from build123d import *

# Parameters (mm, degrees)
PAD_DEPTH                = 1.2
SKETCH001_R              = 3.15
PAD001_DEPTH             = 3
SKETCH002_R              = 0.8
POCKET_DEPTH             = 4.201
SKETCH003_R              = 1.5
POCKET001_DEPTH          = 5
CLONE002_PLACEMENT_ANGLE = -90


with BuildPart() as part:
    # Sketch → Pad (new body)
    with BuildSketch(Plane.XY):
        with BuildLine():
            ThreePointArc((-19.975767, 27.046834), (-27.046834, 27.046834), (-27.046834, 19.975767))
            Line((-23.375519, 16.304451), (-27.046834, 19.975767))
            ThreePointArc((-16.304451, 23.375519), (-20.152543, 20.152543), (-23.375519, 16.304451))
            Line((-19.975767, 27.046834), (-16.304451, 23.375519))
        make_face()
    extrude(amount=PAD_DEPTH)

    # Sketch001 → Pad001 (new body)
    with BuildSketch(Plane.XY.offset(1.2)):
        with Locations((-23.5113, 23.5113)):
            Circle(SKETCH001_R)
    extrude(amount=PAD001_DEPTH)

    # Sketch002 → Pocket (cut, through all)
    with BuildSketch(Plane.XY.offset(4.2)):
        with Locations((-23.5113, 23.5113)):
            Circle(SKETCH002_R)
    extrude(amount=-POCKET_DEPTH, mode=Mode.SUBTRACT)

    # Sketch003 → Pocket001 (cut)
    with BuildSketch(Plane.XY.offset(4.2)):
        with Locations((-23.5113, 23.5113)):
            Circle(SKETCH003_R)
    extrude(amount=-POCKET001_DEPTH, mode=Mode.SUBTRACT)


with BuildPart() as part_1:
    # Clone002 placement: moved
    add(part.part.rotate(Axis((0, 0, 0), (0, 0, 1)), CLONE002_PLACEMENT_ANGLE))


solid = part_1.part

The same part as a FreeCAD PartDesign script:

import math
import FreeCAD as App
import Part
import Sketcher

V = App.Vector
Q = App.Units.Quantity

doc = App.newDocument("Part")
body = doc.addObject("PartDesign::Body", "Body")

# Sketch on XY plane
sketch1 = body.newObject("Sketcher::SketchObject", "Sketch")
sketch1.AttachmentSupport = (doc.getObject("XY_Plane"), [""])
sketch1.MapMode = "FlatFace"
sketch1.addGeometry([
    Part.ArcOfCircle(Part.Circle(V(-23.5, 23.5, 0), V(0, 0, 1), 5), math.radians(45), math.radians(225)),
    Part.LineSegment(V(-27, 20, 0), V(-23.4, 16.3, 0)),
    Part.ArcOfCircle(Part.Circle(V(0, 0, 0), V(0, 0, 1), 28.5), math.radians(125), math.radians(145)),
    Part.LineSegment(V(-16.3, 23.4, 0), V(-20, 27, 0)),
], False)
sketch1.addConstraint([
    Sketcher.Constraint("Tangent", 0, 2, 1, 1),
    Sketcher.Constraint("Coincident", 1, 2, 2, 2),
    Sketcher.Constraint("Coincident", 2, 1, 3, 1),
    Sketcher.Constraint("Tangent", 3, 2, 0, 1),
    Sketcher.Constraint("Parallel", 1, 3),
    Sketcher.Constraint("Equal", 1, 3),
    Sketcher.Constraint("Radius", 0, 4.999999),
    Sketcher.Constraint("Angle", 1, Q("-45.000008 deg")),
    Sketcher.Constraint("Radius", 2, 28.500036),
    Sketcher.Constraint("DistanceX", 0, 3, -1, 1, 23.511301),
    Sketcher.Constraint("DistanceY", -1, 1, 0, 3, 23.511301),
    Sketcher.Constraint("DistanceX", 1, 2, -1, 1, 23.375519),
])
pad1 = body.newObject("PartDesign::Pad", "Pad")
pad1.Profile = sketch1
pad1.Length = 1.2

# Sketch on XY plane
sketch2 = body.newObject("Sketcher::SketchObject", "Sketch001")
sketch2.AttachmentSupport = (doc.getObject("XY_Plane"), [""])
sketch2.MapMode = "FlatFace"
sketch2.AttachmentOffset = App.Placement(V(0, 0, 1.2), App.Rotation())
sketch2.addGeometry(Part.Circle(V(-23.5, 23.5, 0), V(0, 0, 1), 3.1), False)
sketch2.addConstraint([
    Sketcher.Constraint("Diameter", 0, 6.3),
    Sketcher.Constraint("DistanceX", 0, 3, -1, 1, 23.5113),
    Sketcher.Constraint("DistanceY", -1, 1, 0, 3, 23.5113),
])
pad2 = body.newObject("PartDesign::Pad", "Pad001")
pad2.Profile = sketch2
pad2.Length = 3

# Sketch on XY plane
sketch3 = body.newObject("Sketcher::SketchObject", "Sketch002")
sketch3.AttachmentSupport = (doc.getObject("XY_Plane"), [""])
sketch3.MapMode = "FlatFace"
sketch3.AttachmentOffset = App.Placement(V(0, 0, 4.2), App.Rotation())
sketch3.addGeometry(Part.Circle(V(-23.5, 23.5, 0), V(0, 0, 1), 0.8), False)
sketch3.addConstraint([
    Sketcher.Constraint("Diameter", 0, 1.6),
    Sketcher.Constraint("DistanceX", 0, 3, -1, 1, 23.5113),
    Sketcher.Constraint("DistanceY", -1, 1, 0, 3, 23.5113),
])
pocket1 = body.newObject("PartDesign::Pocket", "Pocket")
pocket1.Profile = sketch3
pocket1.Type = "ThroughAll"

# Sketch on XY plane
sketch4 = body.newObject("Sketcher::SketchObject", "Sketch003")
sketch4.AttachmentSupport = (doc.getObject("XY_Plane"), [""])
sketch4.MapMode = "FlatFace"
sketch4.AttachmentOffset = App.Placement(V(0, 0, 4.2), App.Rotation())
sketch4.addGeometry(Part.Circle(V(-23.5, 23.5, 0), V(0, 0, 1), 1.5), False)
sketch4.addConstraint([
    Sketcher.Constraint("Diameter", 0, 3.0),
    Sketcher.Constraint("DistanceX", 0, 3, -1, 1, 23.5113),
    Sketcher.Constraint("DistanceY", -1, 1, 0, 3, 23.5113),
])
pocket2 = body.newObject("PartDesign::Pocket", "Pocket001")
pocket2.Profile = sketch4
pocket2.Length = 5
body2 = doc.addObject("PartDesign::Body", "Body001")
doc.recompute()

body.Placement = App.Placement(V(0, 0, 0), App.Rotation(V(0, 0, 1), 270))
boolean = body2.newObject("PartDesign::Boolean", "Boolean")
boolean.Type = "Fuse"
boolean.addObjects([body])

doc.recompute()
